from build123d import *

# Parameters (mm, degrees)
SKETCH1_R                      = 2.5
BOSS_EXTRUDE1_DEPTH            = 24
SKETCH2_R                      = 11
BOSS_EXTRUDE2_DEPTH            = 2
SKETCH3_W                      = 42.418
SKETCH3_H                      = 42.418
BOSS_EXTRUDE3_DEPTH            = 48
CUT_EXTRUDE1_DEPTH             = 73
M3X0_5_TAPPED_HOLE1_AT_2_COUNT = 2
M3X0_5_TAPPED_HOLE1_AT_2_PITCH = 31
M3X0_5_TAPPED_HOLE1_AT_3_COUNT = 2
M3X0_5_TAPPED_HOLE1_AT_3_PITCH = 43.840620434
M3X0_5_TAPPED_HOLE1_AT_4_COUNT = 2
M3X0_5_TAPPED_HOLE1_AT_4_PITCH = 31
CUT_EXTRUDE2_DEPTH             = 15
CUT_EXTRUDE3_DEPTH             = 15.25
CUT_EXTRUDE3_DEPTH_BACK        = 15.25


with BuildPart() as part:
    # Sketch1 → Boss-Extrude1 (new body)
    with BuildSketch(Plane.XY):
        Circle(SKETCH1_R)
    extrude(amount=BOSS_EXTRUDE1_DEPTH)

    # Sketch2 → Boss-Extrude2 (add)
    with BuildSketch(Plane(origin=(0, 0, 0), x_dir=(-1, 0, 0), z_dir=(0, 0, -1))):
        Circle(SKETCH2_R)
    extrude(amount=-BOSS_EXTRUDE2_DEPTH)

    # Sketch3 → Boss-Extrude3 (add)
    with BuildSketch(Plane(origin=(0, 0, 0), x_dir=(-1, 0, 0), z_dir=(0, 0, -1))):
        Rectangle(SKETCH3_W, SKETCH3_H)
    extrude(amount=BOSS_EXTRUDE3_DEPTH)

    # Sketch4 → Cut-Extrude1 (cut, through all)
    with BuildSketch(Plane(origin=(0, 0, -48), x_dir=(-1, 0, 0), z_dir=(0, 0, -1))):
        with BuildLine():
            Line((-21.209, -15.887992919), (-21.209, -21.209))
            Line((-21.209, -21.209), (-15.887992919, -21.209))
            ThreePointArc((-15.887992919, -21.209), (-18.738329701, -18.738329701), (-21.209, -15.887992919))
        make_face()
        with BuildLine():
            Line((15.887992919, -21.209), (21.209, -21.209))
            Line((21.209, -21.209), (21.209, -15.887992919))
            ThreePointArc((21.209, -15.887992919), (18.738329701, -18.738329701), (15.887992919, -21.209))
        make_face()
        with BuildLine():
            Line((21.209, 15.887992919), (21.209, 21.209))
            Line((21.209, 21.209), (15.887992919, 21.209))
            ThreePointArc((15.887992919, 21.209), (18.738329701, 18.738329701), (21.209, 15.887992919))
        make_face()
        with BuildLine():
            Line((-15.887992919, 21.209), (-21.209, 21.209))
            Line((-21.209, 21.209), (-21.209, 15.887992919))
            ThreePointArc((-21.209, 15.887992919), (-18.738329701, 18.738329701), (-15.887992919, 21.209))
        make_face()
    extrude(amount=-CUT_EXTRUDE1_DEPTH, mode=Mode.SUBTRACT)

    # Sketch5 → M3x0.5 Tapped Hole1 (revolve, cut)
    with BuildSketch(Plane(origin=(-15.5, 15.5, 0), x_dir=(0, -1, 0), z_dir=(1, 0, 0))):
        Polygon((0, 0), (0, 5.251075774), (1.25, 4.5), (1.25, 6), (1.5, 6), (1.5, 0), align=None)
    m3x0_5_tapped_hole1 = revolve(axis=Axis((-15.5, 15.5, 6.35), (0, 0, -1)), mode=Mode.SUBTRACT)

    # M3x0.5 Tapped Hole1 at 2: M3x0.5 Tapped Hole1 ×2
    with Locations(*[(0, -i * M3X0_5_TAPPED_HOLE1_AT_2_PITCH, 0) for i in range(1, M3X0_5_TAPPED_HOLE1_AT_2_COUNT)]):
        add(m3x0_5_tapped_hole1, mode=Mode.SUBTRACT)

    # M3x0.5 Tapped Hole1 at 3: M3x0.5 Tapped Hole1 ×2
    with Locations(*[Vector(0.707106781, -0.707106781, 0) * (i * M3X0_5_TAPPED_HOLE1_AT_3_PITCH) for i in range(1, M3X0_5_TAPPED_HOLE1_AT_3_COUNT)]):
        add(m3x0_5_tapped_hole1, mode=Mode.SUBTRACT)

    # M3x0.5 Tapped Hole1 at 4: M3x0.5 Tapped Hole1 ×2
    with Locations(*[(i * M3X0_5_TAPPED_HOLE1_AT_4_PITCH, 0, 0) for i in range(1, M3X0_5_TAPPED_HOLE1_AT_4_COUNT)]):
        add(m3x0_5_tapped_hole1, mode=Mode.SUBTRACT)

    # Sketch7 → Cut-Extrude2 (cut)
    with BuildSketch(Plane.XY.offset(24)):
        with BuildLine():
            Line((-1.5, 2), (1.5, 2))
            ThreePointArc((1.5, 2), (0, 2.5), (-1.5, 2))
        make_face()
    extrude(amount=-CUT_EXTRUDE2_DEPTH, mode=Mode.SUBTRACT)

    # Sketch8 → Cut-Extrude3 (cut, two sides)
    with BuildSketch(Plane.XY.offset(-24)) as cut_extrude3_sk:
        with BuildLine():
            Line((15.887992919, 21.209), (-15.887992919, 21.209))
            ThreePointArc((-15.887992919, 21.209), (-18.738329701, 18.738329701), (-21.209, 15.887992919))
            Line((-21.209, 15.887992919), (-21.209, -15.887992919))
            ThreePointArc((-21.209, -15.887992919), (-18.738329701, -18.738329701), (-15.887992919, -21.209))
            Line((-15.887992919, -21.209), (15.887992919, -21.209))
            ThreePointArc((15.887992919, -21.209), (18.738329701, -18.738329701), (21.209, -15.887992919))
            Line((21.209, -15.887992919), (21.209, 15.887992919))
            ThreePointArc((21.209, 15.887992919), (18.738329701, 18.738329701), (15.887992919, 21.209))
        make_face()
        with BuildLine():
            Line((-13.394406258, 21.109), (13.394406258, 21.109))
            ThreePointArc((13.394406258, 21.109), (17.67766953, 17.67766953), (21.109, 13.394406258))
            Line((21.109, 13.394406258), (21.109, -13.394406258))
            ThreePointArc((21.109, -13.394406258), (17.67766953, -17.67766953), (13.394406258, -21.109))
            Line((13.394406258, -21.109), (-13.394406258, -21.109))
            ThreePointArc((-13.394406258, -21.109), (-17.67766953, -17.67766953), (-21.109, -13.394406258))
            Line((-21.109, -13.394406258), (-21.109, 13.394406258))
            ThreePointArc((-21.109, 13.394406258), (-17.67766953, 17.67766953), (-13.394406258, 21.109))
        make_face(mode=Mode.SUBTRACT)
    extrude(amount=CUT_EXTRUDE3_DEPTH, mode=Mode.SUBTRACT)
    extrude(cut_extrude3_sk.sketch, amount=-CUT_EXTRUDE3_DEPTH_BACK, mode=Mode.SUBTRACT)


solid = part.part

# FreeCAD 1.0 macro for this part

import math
import FreeCAD as App
import Part
import Sketcher

V = App.Vector
Q = App.Units.Quantity


def add_polygon(sketch, points):
    """Adds a closed chain of lines whose ends are joined by coincident constraints."""
    first, n = sketch.GeometryCount, len(points)
    for a, b in zip(points, points[1:] + points[:1]):
        sketch.addGeometry(Part.LineSegment(App.Vector(*a, 0), App.Vector(*b, 0)), False)
    for i in range(n):
        sketch.addConstraint(Sketcher.Constraint("Coincident", first + i, 2, first + (i + 1) % n, 1))

doc = App.newDocument("Part")
params = doc.addObject("Spreadsheet::Sheet", "Params")
for row, (alias, value) in enumerate([
    ("sketch1_diameter", "5 mm"),
    ("pad1_length", "24 mm"),
    ("sketch2_diameter", "22 mm"),
    ("pad2_length", "2 mm"),
    ("pad3_length", "48 mm"),
    ("sketch4_radius", "26.5 mm"),
    ("sketch5_height", "6 mm"),
    ("sketch5_width", "1.5 mm"),
    ("sketch5_width2", "0.25 mm"),
    ("groove_angle", "360 deg"),
    ("linearpattern_pitch", "31 mm"),
    ("linearpattern2_pitch", "43.84062 mm"),
    ("linearpattern3_pitch", "31 mm"),
    ("sketch6_radius", "2.5 mm"),
    ("sketch6_width", "3 mm"),
    ("pocket2_length", "15 mm"),
    ("sketch7_radius", "25 mm"),
    ("sketch7_radius2", "26.5 mm"),
    ("pocket3_length", "15.25 mm"),
    ("pocket3_length2", "15.25 mm"),
], start=1):
    params.set(f"A{row}", alias)
    params.set(f"B{row}", "=" + value)
    params.setAlias(f"B{row}", alias)

body = doc.addObject("PartDesign::Body", "Body")

# Sketch on XY plane
sketch1 = body.newObject("Sketcher::SketchObject", "Sketch")
sketch1.AttachmentSupport = (doc.getObject("XY_Plane"), [""])
sketch1.MapMode = "FlatFace"
sketch1.addGeometry(Part.Circle(V(0, 0, 0), V(0, 0, 1), 2.5), False)
sketch1.addConstraint([
    Sketcher.Constraint("Coincident", 0, 3, -1, 1),
    Sketcher.Constraint("Diameter", 0, 5.0),
])
sketch1.setExpression("Constraints[1]", "Params.sketch1_diameter")
pad1 = body.newObject("PartDesign::Pad", "Pad")
pad1.Profile = sketch1
pad1.setExpression("Length", "Params.pad1_length")

# Sketch on XY plane
sketch2 = body.newObject("Sketcher::SketchObject", "Sketch001")
sketch2.AttachmentSupport = (doc.getObject("XY_Plane"), [""])
sketch2.MapMode = "FlatFace"
sketch2.addGeometry(Part.Circle(V(0, 0, 0), V(0, 0, 1), 11), False)
sketch2.addConstraint([
    Sketcher.Constraint("Coincident", 0, 3, -1, 1),
    Sketcher.Constraint("Diameter", 0, 22.0),
])
sketch2.setExpression("Constraints[1]", "Params.sketch2_diameter")
pad2 = body.newObject("PartDesign::Pad", "Pad001")
pad2.Profile = sketch2
pad2.setExpression("Length", "Params.pad2_length")

# Sketch on XY plane
sketch3 = body.newObject("Sketcher::SketchObject", "Sketch002")
sketch3.AttachmentSupport = (doc.getObject("XY_Plane"), [""])
sketch3.MapMode = "FlatFace"
add_polygon(sketch3, [(21, 21), (21, -21), (-21, -21), (-21, 21)])  # lines 0-3
sketch3.addConstraint([
    Sketcher.Constraint("Vertical", 0),
    Sketcher.Constraint("Horizontal", 1),
    Sketcher.Constraint("Vertical", 2),
    Sketcher.Constraint("Horizontal", 3),
    Sketcher.Constraint("Symmetric", 0, 2, 2, 2, -1, 1),
    Sketcher.Constraint("Equal", 3, 0),
    Sketcher.Constraint("DistanceX", 1, 2, 1, 1, 42.418),
])
pad3 = body.newObject("PartDesign::Pad", "Pad002")
pad3.Profile = sketch3
pad3.setExpression("Length", "Params.pad3_length")
pad3.Reversed = True

# Sketch on XY plane
sketch4 = body.newObject("Sketcher::SketchObject", "Sketch003")
sketch4.AttachmentSupport = (doc.getObject("XY_Plane"), [""])
sketch4.MapMode = "FlatFace"
sketch4.AttachmentOffset = App.Placement(V(0, 0, -48), App.Rotation())
sketch4.addGeometry([
    Part.LineSegment(V(21, -16, 0), V(21, -21, 0)),  # 0
    Part.LineSegment(V(21, -21, 0), V(16, -21, 0)),  # 1
    Part.ArcOfCircle(Part.Circle(V(0, 0, 0), V(0, 0, 1), 27), math.radians(-53.16), math.radians(-36.84)),  # 2
    Part.LineSegment(V(-16, -21, 0), V(-21, -21, 0)),  # 3
    Part.LineSegment(V(-21, -21, 0), V(-21, -16, 0)),  # 4
    Part.ArcOfCircle(Part.Circle(V(0, 0, 0), V(0, 0, 1), 27), math.radians(-143.16), math.radians(-126.84)),  # 5
    Part.LineSegment(V(-21, 16, 0), V(-21, 21, 0)),  # 6
    Part.LineSegment(V(-21, 21, 0), V(-16, 21, 0)),  # 7
    Part.ArcOfCircle(Part.Circle(V(0, 0, 0), V(0, 0, 1), 27), math.radians(126.84), math.radians(143.16)),  # 8
    Part.LineSegment(V(16, 21, 0), V(21, 21, 0)),  # 9
    Part.LineSegment(V(21, 21, 0), V(21, 16, 0)),  # 10
    Part.ArcOfCircle(Part.Circle(V(0, 0, 0), V(0, 0, 1), 27), math.radians(36.84), math.radians(53.16)),  # 11
], False)
sketch4.addConstraint([
    Sketcher.Constraint("Coincident", 0, 2, 1, 1),
    Sketcher.Constraint("Coincident", 1, 2, 2, 1),
    Sketcher.Constraint("Coincident", 2, 2, 0, 1),
    Sketcher.Constraint("Coincident", 3, 2, 4, 1),
    Sketcher.Constraint("Coincident", 4, 2, 5, 1),
    Sketcher.Constraint("Coincident", 5, 2, 3, 1),
    Sketcher.Constraint("Coincident", 6, 2, 7, 1),
    Sketcher.Constraint("Coincident", 7, 2, 8, 1),
    Sketcher.Constraint("Coincident", 8, 2, 6, 1),
    Sketcher.Constraint("Coincident", 9, 2, 10, 1),
    Sketcher.Constraint("Coincident", 10, 2, 11, 1),
    Sketcher.Constraint("Coincident", 11, 2, 9, 1),
    Sketcher.Constraint("Vertical", 0),
    Sketcher.Constraint("Horizontal", 1),
    Sketcher.Constraint("Horizontal", 3),
    Sketcher.Constraint("Vertical", 4),
    Sketcher.Constraint("Vertical", 6),
    Sketcher.Constraint("Horizontal", 7),
    Sketcher.Constraint("Horizontal", 9),
    Sketcher.Constraint("Vertical", 10),
    Sketcher.Constraint("Coincident", 2, 3, -1, 1),
    Sketcher.Constraint("Coincident", 5, 3, -1, 1),
    Sketcher.Constraint("Coincident", 8, 3, -1, 1),
    Sketcher.Constraint("Coincident", 11, 3, -1, 1),
    Sketcher.Constraint("Equal", 2, 5),
    Sketcher.Constraint("Equal", 5, 8),
    Sketcher.Constraint("Equal", 8, 11),
    Sketcher.Constraint("Symmetric", 0, 2, 6, 2, -1, 1),
    Sketcher.Constraint("Symmetric", 3, 2, 9, 2, -1, 1),
    Sketcher.Constraint("Symmetric", 0, 2, 3, 2, -2),
    Sketcher.Constraint("Equal", 9, 0),
    Sketcher.Constraint("Radius", 2, 26.5),
    Sketcher.Constraint("DistanceX", -1, 1, 0, 2, 21.209),
])
sketch4.setExpression("Constraints[31]", "Params.sketch4_radius")
pocket1 = body.newObject("PartDesign::Pocket", "Pocket")
pocket1.Profile = sketch4
pocket1.Type = "ThroughAll"
pocket1.Reversed = True

# Sketch on YZ plane
sketch5 = body.newObject("Sketcher::SketchObject", "Sketch004")
sketch5.AttachmentSupport = (doc.getObject("YZ_Plane"), [""])
sketch5.MapMode = "FlatFace"
sketch5.AttachmentOffset = App.Placement(V(0, 0, -15.5), App.Rotation())
add_polygon(sketch5, [(15.5, -5.25), (15.5, 0), (14, 0), (14, -6), (14.25, -6), (14.25, -4.5)])  # lines 0-5
sketch5.addGeometry(Part.LineSegment(V(15.5, 0, 0), V(15.5, -6, 0)), True)  # axis
sketch5.addConstraint([
    Sketcher.Constraint("Vertical", 0),
    Sketcher.Constraint("Horizontal", 1),
    Sketcher.Constraint("Vertical", 2),
    Sketcher.Constraint("Horizontal", 3),
    Sketcher.Constraint("Vertical", 4),
    Sketcher.Constraint("Vertical", 6),
    Sketcher.Constraint("Coincident", 6, 1, 0, 2),
    Sketcher.Constraint("PointOnObject", 0, 2, -1),
    Sketcher.Constraint("Horizontal", 3, 2, 6, 2),
    Sketcher.Constraint("Equal", 1, 4),
    Sketcher.Constraint("DistanceY", 2, 2, 2, 1, 6.0),
    Sketcher.Constraint("Angle", 5, Q("-31 deg")),
    Sketcher.Constraint("DistanceX", 1, 2, 1, 1, 1.5),
    Sketcher.Constraint("DistanceX", -1, 1, 1, 2, 14.0),
    Sketcher.Constraint("DistanceX", 3, 1, 3, 2, 0.25),
])
sketch5.setExpression("Constraints[16]", "Params.sketch5_height")
sketch5.setExpression("Constraints[18]", "Params.sketch5_width")
sketch5.setExpression("Constraints[20]", "Params.sketch5_width2")
groove = body.newObject("PartDesign::Groove", "Groove")
groove.Profile = sketch5
groove.ReferenceAxis = (sketch5, ["Axis0"])
groove.setExpression("Angle", "Params.groove_angle")
doc.recompute()

linearpattern = body.newObject("PartDesign::LinearPattern", "LinearPattern")
linearpattern.Originals = [groove]
linearpattern.Direction = (doc.getObject("Y_Axis"), [""])
linearpattern.Mode = "offset"
linearpattern.setExpression("Offset", "Params.linearpattern_pitch")
linearpattern.Occurrences = 2
linearpattern.Reversed = True
body.Tip = linearpattern
doc.recompute()

datumline = body.newObject("PartDesign::Line", "DatumLine")
datumline.Placement = App.Placement(V(0, 0, 0), App.Rotation(V(0, 0, 1), V(0.707106781, -0.707106781, 0)))
linearpattern2 = body.newObject("PartDesign::LinearPattern", "LinearPattern001")
linearpattern2.Originals = [groove]
linearpattern2.Direction = (datumline, [""])
linearpattern2.Mode = "offset"
linearpattern2.setExpression("Offset", "Params.linearpattern2_pitch")
linearpattern2.Occurrences = 2
body.Tip = linearpattern2
doc.recompute()

linearpattern3 = body.newObject("PartDesign::LinearPattern", "LinearPattern002")
linearpattern3.Originals = [groove]
linearpattern3.Direction = (doc.getObject("X_Axis"), [""])
linearpattern3.Mode = "offset"
linearpattern3.setExpression("Offset", "Params.linearpattern3_pitch")
linearpattern3.Occurrences = 2
body.Tip = linearpattern3

# Sketch on XY plane
sketch6 = body.newObject("Sketcher::SketchObject", "Sketch005")
sketch6.AttachmentSupport = (doc.getObject("XY_Plane"), [""])
sketch6.MapMode = "FlatFace"
sketch6.AttachmentOffset = App.Placement(V(0, 0, 24), App.Rotation())
sketch6.addGeometry([
    Part.LineSegment(V(-1.5, 2, 0), V(1.5, 2, 0)),
    Part.ArcOfCircle(Part.Circle(V(0, 0, 0), V(0, 0, 1), 2.5), math.radians(53), math.radians(127)),
], False)
sketch6.addConstraint([
    Sketcher.Constraint("Coincident", 0, 1, 1, 2),
    Sketcher.Constraint("Coincident", 1, 1, 0, 2),
    Sketcher.Constraint("Horizontal", 0),
    Sketcher.Constraint("Coincident", 1, 3, -1, 1),
    Sketcher.Constraint("Radius", 1, 2.5),
    Sketcher.Constraint("DistanceX", 0, 1, 0, 2, 3.0),
])
sketch6.setExpression("Constraints[4]", "Params.sketch6_radius")
sketch6.setExpression("Constraints[5]", "Params.sketch6_width")
pocket2 = body.newObject("PartDesign::Pocket", "Pocket001")
pocket2.Profile = sketch6
pocket2.setExpression("Length", "Params.pocket2_length")

# Sketch on XY plane
sketch7 = body.newObject("Sketcher::SketchObject", "Sketch006")
sketch7.AttachmentSupport = (doc.getObject("XY_Plane"), [""])
sketch7.MapMode = "FlatFace"
sketch7.AttachmentOffset = App.Placement(V(0, 0, -24), App.Rotation())
sketch7.addGeometry([
    Part.LineSegment(V(16, 21, 0), V(-16, 21, 0)),  # 0
    Part.ArcOfCircle(Part.Circle(V(0, 0, 0), V(0, 0, 1), 27), math.radians(126.84), math.radians(143.16)),  # 1
    Part.LineSegment(V(-21, 16, 0), V(-21, -16, 0)),  # 2
    Part.ArcOfCircle(Part.Circle(V(0, 0, 0), V(0, 0, 1), 27), math.radians(-143.16), math.radians(-126.84)),  # 3
    Part.LineSegment(V(-16, -21, 0), V(16, -21, 0)),  # 4
    Part.ArcOfCircle(Part.Circle(V(0, 0, 0), V(0, 0, 1), 27), math.radians(-53.16), math.radians(-36.84)),  # 5
    Part.LineSegment(V(21, -16, 0), V(21, 16, 0)),  # 6
    Part.ArcOfCircle(Part.Circle(V(0, 0, 0), V(0, 0, 1), 27), math.radians(36.84), math.radians(53.16)),  # 7
    Part.ArcOfCircle(Part.Circle(V(0, 0, 0), V(0, 0, 1), 25), math.radians(122), math.radians(148)),  # 8
    Part.LineSegment(V(-13, 21, 0), V(13, 21, 0)),  # 9
    Part.ArcOfCircle(Part.Circle(V(0, 0, 0), V(0, 0, 1), 25), math.radians(32), math.radians(58)),  # 10
    Part.LineSegment(V(21, 13, 0), V(21, -13, 0)),  # 11
    Part.ArcOfCircle(Part.Circle(V(0, 0, 0), V(0, 0, 1), 25), math.radians(-58), math.radians(-32)),  # 12
    Part.LineSegment(V(13, -21, 0), V(-13, -21, 0)),  # 13
    Part.ArcOfCircle(Part.Circle(V(0, 0, 0), V(0, 0, 1), 25), math.radians(-148), math.radians(-122)),  # 14
    Part.LineSegment(V(-21, -13, 0), V(-21, 13, 0)),  # 15
], False)
sketch7.addConstraint([
    Sketcher.Constraint("Coincident", 0, 2, 1, 1),
    Sketcher.Constraint("Coincident", 1, 2, 2, 1),
    Sketcher.Constraint("Coincident", 2, 2, 3, 1),
    Sketcher.Constraint("Coincident", 3, 2, 4, 1),
    Sketcher.Constraint("Coincident", 4, 2, 5, 1),
    Sketcher.Constraint("Coincident", 5, 2, 6, 1),
    Sketcher.Constraint("Coincident", 6, 2, 7, 1),
    Sketcher.Constraint("Coincident", 7, 2, 0, 1),
    Sketcher.Constraint("Coincident", 8, 1, 9, 1),
    Sketcher.Constraint("Coincident", 9, 2, 10, 2),
    Sketcher.Constraint("Coincident", 10, 1, 11, 1),
    Sketcher.Constraint("Coincident", 11, 2, 12, 2),
    Sketcher.Constraint("Coincident", 12, 1, 13, 1),
    Sketcher.Constraint("Coincident", 13, 2, 14, 2),
    Sketcher.Constraint("Coincident", 14, 1, 15, 1),
    Sketcher.Constraint("Coincident", 15, 2, 8, 2),
    Sketcher.Constraint("Horizontal", 0),
    Sketcher.Constraint("Vertical", 2),
    Sketcher.Constraint("Horizontal", 4),
    Sketcher.Constraint("Vertical", 6),
    Sketcher.Constraint("Horizontal", 9),
    Sketcher.Constraint("Vertical", 11),
    Sketcher.Constraint("Horizontal", 13),
    Sketcher.Constraint("Vertical", 15),
    Sketcher.Constraint("Coincident", 1, 3, -1, 1),
    Sketcher.Constraint("Coincident", 3, 3, -1, 1),
    Sketcher.Constraint("Coincident", 5, 3, -1, 1),
    Sketcher.Constraint("Coincident", 7, 3, -1, 1),
    Sketcher.Constraint("Coincident", 8, 3, -1, 1),
    Sketcher.Constraint("Coincident", 10, 3, -1, 1),
    Sketcher.Constraint("Coincident", 12, 3, -1, 1),
    Sketcher.Constraint("Coincident", 14, 3, -1, 1),
    Sketcher.Constraint("Equal", 1, 3),
    Sketcher.Constraint("Equal", 3, 5),
    Sketcher.Constraint("Equal", 5, 7),
    Sketcher.Constraint("Equal", 8, 10),
    Sketcher.Constraint("Equal", 10, 12),
    Sketcher.Constraint("Equal", 12, 14),
    Sketcher.Constraint("Horizontal", 2, 2, 5, 2),
    Sketcher.Constraint("Horizontal", 11, 2, 14, 1),
    Sketcher.Constraint("Vertical", 0, 2, 3, 2),
    Sketcher.Constraint("Vertical", 9, 2, 12, 1),
    Sketcher.Constraint("Equal", 4, 2),
    Sketcher.Constraint("Equal", 13, 11),
    Sketcher.Constraint("Radius", 8, 25.0),
    Sketcher.Constraint("Radius", 1, 26.5),
    Sketcher.Constraint("DistanceY", 8, 1, 0, 2, 0.1),
    Sketcher.Constraint("DistanceY", -1, 1, 0, 2, 21.209),
])
sketch7.setExpression("Constraints[44]", "Params.sketch7_radius")
sketch7.setExpression("Constraints[45]", "Params.sketch7_radius2")
pocket3 = body.newObject("PartDesign::Pocket", "Pocket002")
pocket3.Profile = sketch7
pocket3.Type = "TwoLengths"
pocket3.setExpression("Length", "Params.pocket3_length")
pocket3.setExpression("Length2", "Params.pocket3_length2")
pocket3.Reversed = True

doc.recompute()
